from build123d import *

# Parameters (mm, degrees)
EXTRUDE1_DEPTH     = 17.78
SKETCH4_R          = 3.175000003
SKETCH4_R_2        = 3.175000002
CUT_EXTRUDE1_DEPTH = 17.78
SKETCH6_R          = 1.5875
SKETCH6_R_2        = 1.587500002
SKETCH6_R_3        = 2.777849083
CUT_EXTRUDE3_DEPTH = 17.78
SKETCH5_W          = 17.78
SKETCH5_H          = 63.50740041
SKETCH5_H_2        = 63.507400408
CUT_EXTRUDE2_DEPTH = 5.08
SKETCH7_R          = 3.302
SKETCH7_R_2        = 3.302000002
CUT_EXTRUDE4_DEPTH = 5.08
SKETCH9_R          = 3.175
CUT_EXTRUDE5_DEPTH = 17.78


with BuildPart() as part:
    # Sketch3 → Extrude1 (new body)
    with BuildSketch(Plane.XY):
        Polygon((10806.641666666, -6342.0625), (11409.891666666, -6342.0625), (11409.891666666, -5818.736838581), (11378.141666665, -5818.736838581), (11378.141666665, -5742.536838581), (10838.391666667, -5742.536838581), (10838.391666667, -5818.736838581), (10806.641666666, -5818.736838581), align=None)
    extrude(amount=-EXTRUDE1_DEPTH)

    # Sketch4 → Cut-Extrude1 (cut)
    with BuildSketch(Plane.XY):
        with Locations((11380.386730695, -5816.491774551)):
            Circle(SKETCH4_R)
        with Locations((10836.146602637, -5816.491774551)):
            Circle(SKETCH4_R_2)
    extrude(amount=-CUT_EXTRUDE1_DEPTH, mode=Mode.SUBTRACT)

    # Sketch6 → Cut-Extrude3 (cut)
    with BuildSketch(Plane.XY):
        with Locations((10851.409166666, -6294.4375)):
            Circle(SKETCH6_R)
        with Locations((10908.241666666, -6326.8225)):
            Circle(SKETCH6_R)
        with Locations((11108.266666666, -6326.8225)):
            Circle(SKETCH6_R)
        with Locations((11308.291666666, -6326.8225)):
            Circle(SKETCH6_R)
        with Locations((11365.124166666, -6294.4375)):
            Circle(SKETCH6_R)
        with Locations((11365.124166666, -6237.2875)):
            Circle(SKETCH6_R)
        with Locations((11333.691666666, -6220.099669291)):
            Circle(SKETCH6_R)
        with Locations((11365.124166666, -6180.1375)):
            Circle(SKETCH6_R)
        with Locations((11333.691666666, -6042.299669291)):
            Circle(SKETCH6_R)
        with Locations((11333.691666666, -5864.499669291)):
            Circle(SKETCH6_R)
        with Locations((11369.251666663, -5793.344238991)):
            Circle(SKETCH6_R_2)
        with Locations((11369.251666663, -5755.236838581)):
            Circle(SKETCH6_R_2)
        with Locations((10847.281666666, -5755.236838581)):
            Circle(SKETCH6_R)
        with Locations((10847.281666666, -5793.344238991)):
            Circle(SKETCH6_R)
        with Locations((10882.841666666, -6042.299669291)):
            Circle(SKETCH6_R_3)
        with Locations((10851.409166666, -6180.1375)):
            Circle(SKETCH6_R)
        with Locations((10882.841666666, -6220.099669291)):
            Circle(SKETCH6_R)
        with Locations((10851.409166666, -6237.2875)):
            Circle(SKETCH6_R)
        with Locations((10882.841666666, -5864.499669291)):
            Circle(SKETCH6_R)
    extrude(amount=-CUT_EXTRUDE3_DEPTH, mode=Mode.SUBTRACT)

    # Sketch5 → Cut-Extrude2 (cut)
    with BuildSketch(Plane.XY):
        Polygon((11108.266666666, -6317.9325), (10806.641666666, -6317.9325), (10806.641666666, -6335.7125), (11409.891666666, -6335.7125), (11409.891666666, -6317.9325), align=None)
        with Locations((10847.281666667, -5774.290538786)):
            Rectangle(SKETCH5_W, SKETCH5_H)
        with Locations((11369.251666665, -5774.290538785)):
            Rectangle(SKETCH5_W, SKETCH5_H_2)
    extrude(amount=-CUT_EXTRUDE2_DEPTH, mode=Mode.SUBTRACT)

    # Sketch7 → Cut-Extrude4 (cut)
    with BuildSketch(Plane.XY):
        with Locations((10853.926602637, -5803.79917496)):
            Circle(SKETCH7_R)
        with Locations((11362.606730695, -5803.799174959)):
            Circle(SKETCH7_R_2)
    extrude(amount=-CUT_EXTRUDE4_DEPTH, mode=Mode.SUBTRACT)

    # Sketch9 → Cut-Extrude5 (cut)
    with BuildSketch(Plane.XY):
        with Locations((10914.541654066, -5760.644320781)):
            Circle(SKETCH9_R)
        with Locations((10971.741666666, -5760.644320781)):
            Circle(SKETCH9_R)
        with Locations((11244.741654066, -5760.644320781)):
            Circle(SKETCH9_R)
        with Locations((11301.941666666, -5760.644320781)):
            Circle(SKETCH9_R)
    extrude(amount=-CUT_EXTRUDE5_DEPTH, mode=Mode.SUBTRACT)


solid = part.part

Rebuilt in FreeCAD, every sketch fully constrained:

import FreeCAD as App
import Part
import Sketcher
Q = App.Units.Quantity

doc = App.newDocument("Part")
body = doc.addObject("PartDesign::Body", "Body")

# Sketch on XY plane
sketch1 = body.newObject("Sketcher::SketchObject", "Sketch")
sketch1.AttachmentSupport = (doc.getObject("XY_Plane"), [""])
sketch1.MapMode = "FlatFace"
sketch1.addGeometry([
    Part.LineSegment(App.Vector(10807, -6342, 0), App.Vector(11410, -6342, 0)),  # 0
    Part.LineSegment(App.Vector(11410, -6342, 0), App.Vector(11410, -5819, 0)),  # 1
    Part.LineSegment(App.Vector(11410, -5819, 0), App.Vector(11378, -5819, 0)),  # 2
    Part.LineSegment(App.Vector(11378, -5819, 0), App.Vector(11378, -5743, 0)),  # 3
    Part.LineSegment(App.Vector(11378, -5743, 0), App.Vector(10838, -5743, 0)),  # 4
    Part.LineSegment(App.Vector(10838, -5743, 0), App.Vector(10838, -5819, 0)),  # 5
    Part.LineSegment(App.Vector(10838, -5819, 0), App.Vector(10807, -5819, 0)),  # 6
    Part.LineSegment(App.Vector(10807, -5819, 0), App.Vector(10807, -6342, 0)),  # 7
], False)
sketch1.addConstraint([
    Sketcher.Constraint("Coincident", 0, 2, 1, 1),
    Sketcher.Constraint("Coincident", 1, 2, 2, 1),
    Sketcher.Constraint("Coincident", 2, 2, 3, 1),
    Sketcher.Constraint("Coincident", 3, 2, 4, 1),
    Sketcher.Constraint("Coincident", 4, 2, 5, 1),
    Sketcher.Constraint("Coincident", 5, 2, 6, 1),
    Sketcher.Constraint("Coincident", 6, 2, 7, 1),
    Sketcher.Constraint("Coincident", 7, 2, 0, 1),
    Sketcher.Constraint("Horizontal", 0),
    Sketcher.Constraint("Vertical", 1),
    Sketcher.Constraint("Horizontal", 2),
    Sketcher.Constraint("Vertical", 3),
    Sketcher.Constraint("Horizontal", 4),
    Sketcher.Constraint("Vertical", 5),
    Sketcher.Constraint("Horizontal", 6),
    Sketcher.Constraint("Vertical", 7),
    Sketcher.Constraint("Horizontal", 2, 2, 5, 2),
    Sketcher.Constraint("Equal", 2, 6),
    Sketcher.Constraint("DistanceY", 3, 1, 3, 2, Q("3 in")),
    Sketcher.Constraint("DistanceX", 0, 1, 0, 2, Q("23.75 in")),
    Sketcher.Constraint("DistanceX", 2, 2, 2, 1, Q("1.25 in")),
    Sketcher.Constraint("DistanceY", 0, 2, -1, 1, Q("249.6875 in")),
    Sketcher.Constraint("DistanceY", 1, 1, 1, 2, 523.325661),
    Sketcher.Constraint("DistanceX", -1, 1, 0, 2, 11409.891667),
])
pad1 = body.newObject("PartDesign::Pad", "Pad")
pad1.Profile = sketch1
pad1.Length = Q("0.7 in")
pad1.Reversed = True

# Sketch on XY plane
sketch2 = body.newObject("Sketcher::SketchObject", "Sketch001")
sketch2.AttachmentSupport = (doc.getObject("XY_Plane"), [""])
sketch2.MapMode = "FlatFace"
sketch2.addGeometry([
    Part.Circle(App.Vector(11380.4, -5816.5, 0), App.Vector(0, 0, 1), 3.2),
    Part.Circle(App.Vector(10836.1, -5816.5, 0), App.Vector(0, 0, 1), 3.2),
], False)
sketch2.addConstraint([
    Sketcher.Constraint("Equal", 0, 1),
    Sketcher.Constraint("Horizontal", 0, 3, 1, 3),
    Sketcher.Constraint("Diameter", 0, Q("0.25 in")),
    Sketcher.Constraint("DistanceX", -1, 1, 0, 3, 11380.386731),
    Sketcher.Constraint("DistanceX", 1, 3, 0, 3, 544.240128),
    Sketcher.Constraint("DistanceY", 0, 3, -1, 1, 5816.491775),
])
pocket1 = body.newObject("PartDesign::Pocket", "Pocket")
pocket1.Profile = sketch2
pocket1.Length = Q("0.7 in")

# Sketch on XY plane
sketch3 = body.newObject("Sketcher::SketchObject", "Sketch002")
sketch3.AttachmentSupport = (doc.getObject("XY_Plane"), [""])
sketch3.MapMode = "FlatFace"
sketch3.addGeometry([
    Part.Circle(App.Vector(10851.4, -6294.4, 0), App.Vector(0, 0, 1), 1.6),  # 0
    Part.Circle(App.Vector(10908.2, -6326.8, 0), App.Vector(0, 0, 1), 1.6),  # 1
    Part.Circle(App.Vector(11108.3, -6326.8, 0), App.Vector(0, 0, 1), 1.6),  # 2
    Part.Circle(App.Vector(11308.3, -6326.8, 0), App.Vector(0, 0, 1), 1.6),  # 3
    Part.Circle(App.Vector(11365.1, -6294.4, 0), App.Vector(0, 0, 1), 1.6),  # 4
    Part.Circle(App.Vector(11365.1, -6237.3, 0), App.Vector(0, 0, 1), 1.6),  # 5
    Part.Circle(App.Vector(11333.7, -6220.1, 0), App.Vector(0, 0, 1), 1.6),  # 6
    Part.Circle(App.Vector(11365.1, -6180.1, 0), App.Vector(0, 0, 1), 1.6),  # 7
    Part.Circle(App.Vector(11333.7, -6042.3, 0), App.Vector(0, 0, 1), 1.6),  # 8
    Part.Circle(App.Vector(11333.7, -5864.5, 0), App.Vector(0, 0, 1), 1.6),  # 9
    Part.Circle(App.Vector(11369.3, -5793.3, 0), App.Vector(0, 0, 1), 1.6),  # 10
    Part.Circle(App.Vector(11369.3, -5755.2, 0), App.Vector(0, 0, 1), 1.6),  # 11
    Part.Circle(App.Vector(10847.3, -5755.2, 0), App.Vector(0, 0, 1), 1.6),  # 12
    Part.Circle(App.Vector(10847.3, -5793.3, 0), App.Vector(0, 0, 1), 1.6),  # 13
    Part.Circle(App.Vector(10882.8, -6042.3, 0), App.Vector(0, 0, 1), 2.8),  # 14
    Part.Circle(App.Vector(10851.4, -6180.1, 0), App.Vector(0, 0, 1), 1.6),  # 15
    Part.Circle(App.Vector(10882.8, -6220.1, 0), App.Vector(0, 0, 1), 1.6),  # 16
    Part.Circle(App.Vector(10851.4, -6237.3, 0), App.Vector(0, 0, 1), 1.6),  # 17
    Part.Circle(App.Vector(10882.8, -5864.5, 0), App.Vector(0, 0, 1), 1.6),  # 18
], False)
sketch3.addConstraint([
    Sketcher.Constraint("Equal", 0, 1),
    Sketcher.Constraint("Equal", 1, 2),
    Sketcher.Constraint("Equal", 2, 3),
    Sketcher.Constraint("Equal", 3, 4),
    Sketcher.Constraint("Equal", 4, 5),
    Sketcher.Constraint("Equal", 5, 6),
    Sketcher.Constraint("Equal", 6, 7),
    Sketcher.Constraint("Equal", 7, 8),
    Sketcher.Constraint("Equal", 8, 9),
    Sketcher.Constraint("Equal", 9, 10),
    Sketcher.Constraint("Equal", 10, 11),
    Sketcher.Constraint("Equal", 11, 12),
    Sketcher.Constraint("Equal", 12, 13),
    Sketcher.Constraint("Equal", 13, 15),
    Sketcher.Constraint("Equal", 15, 16),
    Sketcher.Constraint("Equal", 16, 17),
    Sketcher.Constraint("Equal", 17, 18),
    Sketcher.Constraint("Horizontal", 1, 3, 2, 3),
    Sketcher.Constraint("Horizontal", 2, 3, 3, 3),
    Sketcher.Constraint("Horizontal", 0, 3, 4, 3),
    Sketcher.Constraint("Horizontal", 11, 3, 12, 3),
    Sketcher.Constraint("Horizontal", 10, 3, 13, 3),
    Sketcher.Constraint("Horizontal", 8, 3, 14, 3),
    Sketcher.Constraint("Horizontal", 7, 3, 15, 3),
    Sketcher.Constraint("Horizontal", 6, 3, 16, 3),
    Sketcher.Constraint("Horizontal", 5, 3, 17, 3),
    Sketcher.Constraint("Horizontal", 9, 3, 18, 3),
    Sketcher.Constraint("Vertical", 4, 3, 5, 3),
    Sketcher.Constraint("Vertical", 5, 3, 7, 3),
    Sketcher.Constraint("Vertical", 6, 3, 8, 3),
    Sketcher.Constraint("Vertical", 8, 3, 9, 3),
    Sketcher.Constraint("Vertical", 10, 3, 11, 3),
    Sketcher.Constraint("Vertical", 12, 3, 13, 3),
    Sketcher.Constraint("Vertical", 0, 3, 15, 3),
    Sketcher.Constraint("Vertical", 14, 3, 16, 3),
    Sketcher.Constraint("Vertical", 15, 3, 17, 3),
    Sketcher.Constraint("Vertical", 16, 3, 18, 3),
    Sketcher.Constraint("Diameter", 0, Q("0.125 in")),
    Sketcher.Constraint("DistanceX", 3, 3, 6, 3, Q("1 in")),
    Sketcher.Constraint("DistanceY", 6, 3, 8, 3, Q("7 in")),
    Sketcher.Constraint("DistanceY", 8, 3, 9, 3, Q("7 in")),
    Sketcher.Constraint("DistanceX", 14, 3, 1, 3, Q("1 in")),
    Sketcher.Constraint("DistanceY", 4, 3, 7, 3, Q("4.5 in")),
    Sketcher.Constraint("DistanceX", 9, 3, 10, 3, Q("1.4 in")),
    Sketcher.Constraint("DistanceX", 13, 3, 14, 3, Q("1.4 in")),
    Sketcher.Constraint("Diameter", 14, 5.555698),
    Sketcher.Constraint("DistanceX", 1, 3, 3, 3, Q("15.75 in")),
    Sketcher.Constraint("DistanceY", 4, 3, 5, 3, Q("2.25 in")),
    Sketcher.Constraint("DistanceY", 0, 3, -1, 1, Q("247.8125 in")),
    Sketcher.Constraint("DistanceY", 1, 3, 0, 3, Q("1.275 in")),
    Sketcher.Constraint("DistanceX", 1, 3, 2, 3, Q("7.875 in")),
    Sketcher.Constraint("DistanceX", 0, 3, 4, 3, Q("20.225 in")),
    Sketcher.Constraint("DistanceX", 0, 3, 1, 3, Q("2.2375 in")),
    Sketcher.Constraint("DistanceY", 10, 3, 11, 3, 38.1074),
    Sketcher.Constraint("DistanceY", 6, 3, -1, 1, 6220.099669),
    Sketcher.Constraint("DistanceY", 10, 3, -1, 1, 5793.344239),
    Sketcher.Constraint("DistanceX", -1, 1, 0, 3, 10851.409167),
])
pocket2 = body.newObject("PartDesign::Pocket", "Pocket001")
pocket2.Profile = sketch3
pocket2.Length = Q("0.7 in")

# Sketch on XY plane
sketch4 = body.newObject("Sketcher::SketchObject", "Sketch003")
sketch4.AttachmentSupport = (doc.getObject("XY_Plane"), [""])
sketch4.MapMode = "FlatFace"
sketch4.addGeometry([
    Part.LineSegment(App.Vector(10807, -6318, 0), App.Vector(10807, -6336, 0)),  # 0
    Part.LineSegment(App.Vector(10807, -6336, 0), App.Vector(11410, -6336, 0)),  # 1
    Part.LineSegment(App.Vector(11410, -6336, 0), App.Vector(11410, -6318, 0)),  # 2
    Part.LineSegment(App.Vector(11410, -6318, 0), App.Vector(10807, -6318, 0)),  # 3
    Part.LineSegment(App.Vector(10838, -5743, 0), App.Vector(10838, -5806, 0)),  # 4
    Part.LineSegment(App.Vector(10838, -5806, 0), App.Vector(10856, -5806, 0)),  # 5
    Part.LineSegment(App.Vector(10856, -5806, 0), App.Vector(10856, -5743, 0)),  # 6
    Part.LineSegment(App.Vector(10856, -5743, 0), App.Vector(10838, -5743, 0)),  # 7
    Part.LineSegment(App.Vector(11360, -5743, 0), App.Vector(11360, -5806, 0)),  # 8
    Part.LineSegment(App.Vector(11360, -5806, 0), App.Vector(11378, -5806, 0)),  # 9
    Part.LineSegment(App.Vector(11378, -5806, 0), App.Vector(11378, -5743, 0)),  # 10
    Part.LineSegment(App.Vector(11378, -5743, 0), App.Vector(11360, -5743, 0)),  # 11
], False)
sketch4.addConstraint([
    Sketcher.Constraint("Coincident", 0, 2, 1, 1),
    Sketcher.Constraint("Coincident", 1, 2, 2, 1),
    Sketcher.Constraint("Coincident", 2, 2, 3, 1),
    Sketcher.Constraint("Coincident", 3, 2, 0, 1),
    Sketcher.Constraint("Coincident", 4, 2, 5, 1),
    Sketcher.Constraint("Coincident", 5, 2, 6, 1),
    Sketcher.Constraint("Coincident", 6, 2, 7, 1),
    Sketcher.Constraint("Coincident", 7, 2, 4, 1),
    Sketcher.Constraint("Coincident", 8, 2, 9, 1),
    Sketcher.Constraint("Coincident", 9, 2, 10, 1),
    Sketcher.Constraint("Coincident", 10, 2, 11, 1),
    Sketcher.Constraint("Coincident", 11, 2, 8, 1),
    Sketcher.Constraint("Vertical", 0),
    Sketcher.Constraint("Horizontal", 1),
    Sketcher.Constraint("Vertical", 2),
    Sketcher.Constraint("Horizontal", 3),
    Sketcher.Constraint("Vertical", 4),
    Sketcher.Constraint("Horizontal", 5),
    Sketcher.Constraint("Vertical", 6),
    Sketcher.Constraint("Horizontal", 7),
    Sketcher.Constraint("Vertical", 8),
    Sketcher.Constraint("Horizontal", 9),
    Sketcher.Constraint("Vertical", 10),
    Sketcher.Constraint("Horizontal", 11),
    Sketcher.Constraint("Horizontal", 5, 2, 8, 2),
    Sketcher.Constraint("Horizontal", 7, 2, 10, 2),
    Sketcher.Constraint("Equal", 7, 9),
    Sketcher.Constraint("Equal", 11, 0),
    Sketcher.Constraint("DistanceX", 5, 1, 5, 2, Q("0.7 in")),
    Sketcher.Constraint("DistanceX", 1, 1, 1, 2, Q("23.75 in")),
    Sketcher.Constraint("DistanceX", 4, 2, 2, 2, Q("22.5 in")),
    Sketcher.Constraint("DistanceX", 5, 2, 8, 2, Q("19.85 in")),
    Sketcher.Constraint("DistanceY", 0, 2, -1, 1, Q("249.4375 in")),
    Sketcher.Constraint("DistanceY", 4, 2, 4, 1, 63.5074),
    Sketcher.Constraint("DistanceY", 4, 2, -1, 1, 5806.044239),
    Sketcher.Constraint("DistanceX", -1, 1, 0, 2, 10806.641667),
])
pocket3 = body.newObject("PartDesign::Pocket", "Pocket002")
pocket3.Profile = sketch4
pocket3.Length = Q("0.2 in")

# Sketch on XY plane
sketch5 = body.newObject("Sketcher::SketchObject", "Sketch004")
sketch5.AttachmentSupport = (doc.getObject("XY_Plane"), [""])
sketch5.MapMode = "FlatFace"
sketch5.addGeometry([
    Part.Circle(App.Vector(10853.9, -5803.8, 0), App.Vector(0, 0, 1), 3.3),
    Part.Circle(App.Vector(11362.6, -5803.8, 0), App.Vector(0, 0, 1), 3.3),
], False)
sketch5.addConstraint([
    Sketcher.Constraint("Equal", 0, 1),
    Sketcher.Constraint("Horizontal", 0, 3, 1, 3),
    Sketcher.Constraint("Diameter", 0, Q("0.26 in")),
    Sketcher.Constraint("DistanceX", -1, 1, 1, 3, 11362.606731),
    Sketcher.Constraint("DistanceX", 0, 3, 1, 3, 508.680128),
    Sketcher.Constraint("DistanceY", 0, 3, -1, 1, 5803.799175),
])
pocket4 = body.newObject("PartDesign::Pocket", "Pocket003")
pocket4.Profile = sketch5
pocket4.Length = Q("0.2 in")

# Sketch on XY plane
sketch6 = body.newObject("Sketcher::SketchObject", "Sketch005")
sketch6.AttachmentSupport = (doc.getObject("XY_Plane"), [""])
sketch6.MapMode = "FlatFace"
sketch6.addGeometry([
    Part.Circle(App.Vector(10914.5, -5760.6, 0), App.Vector(0, 0, 1), 3.2),
    Part.Circle(App.Vector(10971.7, -5760.6, 0), App.Vector(0, 0, 1), 3.2),
    Part.Circle(App.Vector(11244.7, -5760.6, 0), App.Vector(0, 0, 1), 3.2),
    Part.Circle(App.Vector(11301.9, -5760.6, 0), App.Vector(0, 0, 1), 3.2),
], False)
sketch6.addConstraint([
    Sketcher.Constraint("Equal", 0, 1),
    Sketcher.Constraint("Equal", 1, 2),
    Sketcher.Constraint("Equal", 2, 3),
    Sketcher.Constraint("Horizontal", 0, 3, 1, 3),
    Sketcher.Constraint("Horizontal", 1, 3, 2, 3),
    Sketcher.Constraint("Horizontal", 2, 3, 3, 3),
    Sketcher.Constraint("Diameter", 0, Q("0.25 in")),
    Sketcher.Constraint("DistanceX", 0, 3, 2, 3, Q("13 in")),
    Sketcher.Constraint("DistanceX", 1, 3, 3, 3, Q("13 in")),
    Sketcher.Constraint("DistanceY", 0, 3, -1, 1, 5760.644321),
    Sketcher.Constraint("DistanceX", -1, 1, 0, 3, 10914.541654),
    Sketcher.Constraint("DistanceX", -1, 1, 1, 3, 10971.741667),
])
pocket5 = body.newObject("PartDesign::Pocket", "Pocket004")
pocket5.Profile = sketch6
pocket5.Length = Q("0.7 in")

doc.recompute()
